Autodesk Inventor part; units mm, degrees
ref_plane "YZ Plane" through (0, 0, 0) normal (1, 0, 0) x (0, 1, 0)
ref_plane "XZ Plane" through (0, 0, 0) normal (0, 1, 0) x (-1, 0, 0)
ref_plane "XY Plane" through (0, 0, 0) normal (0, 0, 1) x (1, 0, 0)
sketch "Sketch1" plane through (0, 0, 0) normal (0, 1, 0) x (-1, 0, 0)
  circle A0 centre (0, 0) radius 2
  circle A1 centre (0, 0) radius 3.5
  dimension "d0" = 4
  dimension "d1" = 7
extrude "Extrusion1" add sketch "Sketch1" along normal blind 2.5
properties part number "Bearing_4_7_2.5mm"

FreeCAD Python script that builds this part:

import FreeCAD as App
import Part
import Sketcher
Q = App.Units.Quantity

doc = App.newDocument("Part")
body = doc.addObject("PartDesign::Body", "Body")

sketch1 = doc.addObject("Sketcher::SketchObject", "Sketch")
body.addObject(sketch1)
sketch1.AttachmentSupport = (doc.XZ_Plane, [""])
sketch1.MapMode = "FlatFace"
sketch1.addGeometry([
    Part.Circle(App.Vector(0, 0, 0), App.Vector(0, 0, 1), 3.5),
    Part.Circle(App.Vector(0, 0, 0), App.Vector(0, 0, 1), 2),
], False)
sketch1.addConstraint([
    Sketcher.Constraint("Coincident", 0, 3, -1, 1),
    Sketcher.Constraint("Coincident", 1, 3, -1, 1),
    Sketcher.Constraint("Diameter", 0, Q("7 mm")),
    Sketcher.Constraint("Diameter", 1, Q("4 mm")),
])
pad1 = doc.addObject("PartDesign::Pad", "Pad")
body.addObject(pad1)
pad1.Profile = sketch1
pad1.Length = 2.5
pad1.Reversed = True

doc.recompute()
